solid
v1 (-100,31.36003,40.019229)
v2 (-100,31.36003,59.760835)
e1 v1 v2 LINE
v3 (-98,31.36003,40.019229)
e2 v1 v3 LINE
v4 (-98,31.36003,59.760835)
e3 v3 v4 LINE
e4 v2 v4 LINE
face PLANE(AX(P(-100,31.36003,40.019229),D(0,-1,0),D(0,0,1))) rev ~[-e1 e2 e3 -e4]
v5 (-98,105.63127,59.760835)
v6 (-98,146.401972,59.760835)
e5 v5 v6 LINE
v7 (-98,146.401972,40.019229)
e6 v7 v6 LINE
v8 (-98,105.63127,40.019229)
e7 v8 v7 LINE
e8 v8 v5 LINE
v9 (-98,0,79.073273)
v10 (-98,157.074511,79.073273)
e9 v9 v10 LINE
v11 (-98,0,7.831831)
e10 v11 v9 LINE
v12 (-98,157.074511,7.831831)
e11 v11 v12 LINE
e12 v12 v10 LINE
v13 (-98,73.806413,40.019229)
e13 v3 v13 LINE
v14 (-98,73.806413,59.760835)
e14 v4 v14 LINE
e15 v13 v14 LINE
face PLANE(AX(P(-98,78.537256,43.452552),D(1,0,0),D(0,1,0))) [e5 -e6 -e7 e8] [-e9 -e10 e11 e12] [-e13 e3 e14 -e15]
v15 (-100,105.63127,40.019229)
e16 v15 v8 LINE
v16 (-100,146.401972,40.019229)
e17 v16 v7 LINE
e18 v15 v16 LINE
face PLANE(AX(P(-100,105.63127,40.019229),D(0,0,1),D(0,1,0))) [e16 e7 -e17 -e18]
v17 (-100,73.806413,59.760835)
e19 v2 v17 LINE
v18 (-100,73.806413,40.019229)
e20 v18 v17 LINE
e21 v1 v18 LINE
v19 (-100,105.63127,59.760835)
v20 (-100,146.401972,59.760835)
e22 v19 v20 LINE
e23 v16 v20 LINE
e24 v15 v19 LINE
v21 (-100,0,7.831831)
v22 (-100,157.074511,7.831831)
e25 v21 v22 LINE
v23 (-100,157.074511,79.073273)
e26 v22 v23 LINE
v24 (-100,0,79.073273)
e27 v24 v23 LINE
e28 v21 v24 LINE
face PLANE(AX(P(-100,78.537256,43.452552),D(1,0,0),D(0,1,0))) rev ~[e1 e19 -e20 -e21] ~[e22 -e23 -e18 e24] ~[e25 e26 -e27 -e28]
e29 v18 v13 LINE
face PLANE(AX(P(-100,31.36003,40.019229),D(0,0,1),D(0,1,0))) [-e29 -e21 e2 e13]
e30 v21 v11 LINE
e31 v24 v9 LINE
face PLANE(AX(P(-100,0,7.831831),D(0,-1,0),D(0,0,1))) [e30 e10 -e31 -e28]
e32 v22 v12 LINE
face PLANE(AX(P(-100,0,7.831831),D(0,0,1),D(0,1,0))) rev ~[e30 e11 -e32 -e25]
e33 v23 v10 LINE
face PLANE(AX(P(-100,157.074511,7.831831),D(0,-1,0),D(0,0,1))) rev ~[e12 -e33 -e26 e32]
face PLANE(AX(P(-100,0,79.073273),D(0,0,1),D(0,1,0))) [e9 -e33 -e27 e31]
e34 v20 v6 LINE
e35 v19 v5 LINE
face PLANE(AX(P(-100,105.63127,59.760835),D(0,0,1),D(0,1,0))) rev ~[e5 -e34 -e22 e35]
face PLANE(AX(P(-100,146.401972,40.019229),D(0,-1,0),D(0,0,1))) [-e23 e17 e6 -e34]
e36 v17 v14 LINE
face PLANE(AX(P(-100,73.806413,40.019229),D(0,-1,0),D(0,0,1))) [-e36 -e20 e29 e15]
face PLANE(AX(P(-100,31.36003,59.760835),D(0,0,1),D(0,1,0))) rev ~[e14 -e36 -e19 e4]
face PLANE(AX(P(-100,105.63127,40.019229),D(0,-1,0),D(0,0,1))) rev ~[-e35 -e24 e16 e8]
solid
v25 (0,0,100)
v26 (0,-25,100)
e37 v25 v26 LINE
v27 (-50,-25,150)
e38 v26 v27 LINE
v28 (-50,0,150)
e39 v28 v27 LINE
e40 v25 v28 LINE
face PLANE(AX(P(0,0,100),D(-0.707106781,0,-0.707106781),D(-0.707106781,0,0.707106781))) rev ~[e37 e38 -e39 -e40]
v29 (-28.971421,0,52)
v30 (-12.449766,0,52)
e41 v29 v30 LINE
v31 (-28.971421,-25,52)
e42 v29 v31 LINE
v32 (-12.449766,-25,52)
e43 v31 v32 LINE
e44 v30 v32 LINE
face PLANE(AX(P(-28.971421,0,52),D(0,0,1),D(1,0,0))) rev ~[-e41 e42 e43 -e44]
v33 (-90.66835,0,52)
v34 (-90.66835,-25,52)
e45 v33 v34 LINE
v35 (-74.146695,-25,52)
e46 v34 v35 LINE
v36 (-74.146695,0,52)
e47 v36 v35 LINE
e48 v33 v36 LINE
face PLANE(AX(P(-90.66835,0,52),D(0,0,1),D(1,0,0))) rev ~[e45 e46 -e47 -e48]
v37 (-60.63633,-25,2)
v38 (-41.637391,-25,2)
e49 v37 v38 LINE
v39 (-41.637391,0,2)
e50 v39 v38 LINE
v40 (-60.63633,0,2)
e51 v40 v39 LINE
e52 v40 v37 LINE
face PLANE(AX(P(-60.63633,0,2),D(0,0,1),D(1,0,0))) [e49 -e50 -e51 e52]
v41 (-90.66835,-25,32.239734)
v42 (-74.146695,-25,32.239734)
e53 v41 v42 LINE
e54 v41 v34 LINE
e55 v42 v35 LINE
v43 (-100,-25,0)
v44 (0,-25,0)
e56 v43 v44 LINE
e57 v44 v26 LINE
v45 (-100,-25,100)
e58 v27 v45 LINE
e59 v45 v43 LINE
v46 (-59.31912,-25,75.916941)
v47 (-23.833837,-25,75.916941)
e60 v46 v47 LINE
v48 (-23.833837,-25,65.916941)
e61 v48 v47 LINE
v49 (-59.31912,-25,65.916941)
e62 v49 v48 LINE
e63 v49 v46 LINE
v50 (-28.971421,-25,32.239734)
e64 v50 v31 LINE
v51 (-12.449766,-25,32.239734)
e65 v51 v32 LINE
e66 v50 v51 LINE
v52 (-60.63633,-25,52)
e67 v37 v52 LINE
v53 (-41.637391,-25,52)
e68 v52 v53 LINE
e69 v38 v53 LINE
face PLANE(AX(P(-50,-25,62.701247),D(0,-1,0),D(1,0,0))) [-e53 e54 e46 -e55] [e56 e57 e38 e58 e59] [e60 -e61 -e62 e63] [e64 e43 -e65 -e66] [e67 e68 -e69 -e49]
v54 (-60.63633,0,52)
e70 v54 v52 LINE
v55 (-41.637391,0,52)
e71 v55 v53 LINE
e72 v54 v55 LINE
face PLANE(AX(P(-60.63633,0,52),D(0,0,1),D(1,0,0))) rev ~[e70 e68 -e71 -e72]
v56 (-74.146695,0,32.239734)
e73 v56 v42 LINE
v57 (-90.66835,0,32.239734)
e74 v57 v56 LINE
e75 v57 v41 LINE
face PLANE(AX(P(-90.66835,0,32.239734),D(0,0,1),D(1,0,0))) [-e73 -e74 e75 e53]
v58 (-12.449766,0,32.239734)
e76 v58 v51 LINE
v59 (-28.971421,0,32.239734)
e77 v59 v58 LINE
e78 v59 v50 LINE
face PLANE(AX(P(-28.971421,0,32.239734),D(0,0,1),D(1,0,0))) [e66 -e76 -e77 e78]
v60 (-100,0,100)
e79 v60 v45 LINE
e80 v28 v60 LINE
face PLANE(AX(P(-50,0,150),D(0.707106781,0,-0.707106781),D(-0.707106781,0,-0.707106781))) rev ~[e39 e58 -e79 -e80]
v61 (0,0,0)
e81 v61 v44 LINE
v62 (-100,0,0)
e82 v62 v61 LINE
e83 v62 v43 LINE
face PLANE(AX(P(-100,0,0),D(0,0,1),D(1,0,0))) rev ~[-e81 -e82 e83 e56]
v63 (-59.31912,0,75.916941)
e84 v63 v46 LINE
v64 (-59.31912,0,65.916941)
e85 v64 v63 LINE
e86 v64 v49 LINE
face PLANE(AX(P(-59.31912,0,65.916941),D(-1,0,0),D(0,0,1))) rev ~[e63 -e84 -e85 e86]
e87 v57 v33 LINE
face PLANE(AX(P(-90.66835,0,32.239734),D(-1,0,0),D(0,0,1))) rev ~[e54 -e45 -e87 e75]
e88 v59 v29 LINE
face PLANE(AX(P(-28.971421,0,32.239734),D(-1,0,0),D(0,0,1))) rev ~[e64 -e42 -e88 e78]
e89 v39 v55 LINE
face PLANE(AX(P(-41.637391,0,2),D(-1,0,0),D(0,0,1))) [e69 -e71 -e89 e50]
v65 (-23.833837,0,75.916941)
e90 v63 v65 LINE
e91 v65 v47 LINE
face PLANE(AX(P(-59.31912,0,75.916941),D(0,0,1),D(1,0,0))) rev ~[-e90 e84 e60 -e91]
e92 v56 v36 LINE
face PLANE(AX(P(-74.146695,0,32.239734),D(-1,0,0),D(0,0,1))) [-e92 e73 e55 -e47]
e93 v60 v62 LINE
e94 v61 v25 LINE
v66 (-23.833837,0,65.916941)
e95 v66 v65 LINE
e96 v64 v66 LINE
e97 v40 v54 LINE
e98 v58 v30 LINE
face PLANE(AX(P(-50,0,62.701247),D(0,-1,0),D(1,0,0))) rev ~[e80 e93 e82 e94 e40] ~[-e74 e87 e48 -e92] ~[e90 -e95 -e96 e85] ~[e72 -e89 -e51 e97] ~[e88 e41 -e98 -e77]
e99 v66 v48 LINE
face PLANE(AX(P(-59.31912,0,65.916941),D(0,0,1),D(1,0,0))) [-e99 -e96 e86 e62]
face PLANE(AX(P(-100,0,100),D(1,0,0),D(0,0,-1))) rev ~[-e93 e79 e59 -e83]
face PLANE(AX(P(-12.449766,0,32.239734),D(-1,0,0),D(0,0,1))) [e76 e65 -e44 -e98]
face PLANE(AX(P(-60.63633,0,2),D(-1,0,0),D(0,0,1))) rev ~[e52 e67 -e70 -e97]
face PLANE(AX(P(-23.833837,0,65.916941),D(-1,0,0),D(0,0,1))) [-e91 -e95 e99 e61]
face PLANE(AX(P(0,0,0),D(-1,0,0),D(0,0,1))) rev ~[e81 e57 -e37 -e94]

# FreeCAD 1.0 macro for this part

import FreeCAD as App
import Part
import Sketcher

doc = App.newDocument("Part")
body = doc.addObject("PartDesign::Body", "Body")

# Sketch on XZ plane
sketch1 = body.newObject("Sketcher::SketchObject", "Sketch")
sketch1.AttachmentSupport = (doc.getObject("XZ_Plane"), [""])
sketch1.MapMode = "FlatFace"
sketch1.addGeometry([
    Part.LineSegment(App.Vector(-100, 100, 0), App.Vector(-100, 0, 0)),  # 0
    Part.LineSegment(App.Vector(-100, 0, 0), App.Vector(0, 0, 0)),  # 1
    Part.LineSegment(App.Vector(0, 0, 0), App.Vector(0, 100, 0)),  # 2
    Part.LineSegment(App.Vector(0, 100, 0), App.Vector(-50, 150, 0)),  # 3
    Part.LineSegment(App.Vector(-50, 150, 0), App.Vector(-100, 100, 0)),  # 4
    Part.LineSegment(App.Vector(-41.637391, 2, 0), App.Vector(-60.63633, 2, 0)),  # 5
    Part.LineSegment(App.Vector(-60.63633, 2, 0), App.Vector(-60.63633, 52, 0)),  # 6
    Part.LineSegment(App.Vector(-60.63633, 52, 0), App.Vector(-41.637391, 52, 0)),  # 7
    Part.LineSegment(App.Vector(-41.637391, 52, 0), App.Vector(-41.637391, 2, 0)),  # 8
    Part.LineSegment(App.Vector(-74.146695, 32.239734, 0), App.Vector(-90.66835, 32.239734, 0)),  # 9
    Part.LineSegment(App.Vector(-90.66835, 32.239734, 0), App.Vector(-90.66835, 52, 0)),  # 10
    Part.LineSegment(App.Vector(-90.66835, 52, 0), App.Vector(-74.146695, 52, 0)),  # 11
    Part.LineSegment(App.Vector(-74.146695, 52, 0), App.Vector(-74.146695, 32.239734, 0)),  # 12
    Part.LineSegment(App.Vector(-12.449766, 32.239734, 0), App.Vector(-28.971421, 32.239734, 0)),  # 13
    Part.LineSegment(App.Vector(-28.971421, 32.239734, 0), App.Vector(-28.971421, 52, 0)),  # 14
    Part.LineSegment(App.Vector(-28.971421, 52, 0), App.Vector(-12.449766, 52, 0)),  # 15
    Part.LineSegment(App.Vector(-12.449766, 52, 0), App.Vector(-12.449766, 32.239734, 0)),  # 16
    Part.LineSegment(App.Vector(-23.833837, 65.916941, 0), App.Vector(-59.31912, 65.916941, 0)),  # 17
    Part.LineSegment(App.Vector(-59.31912, 65.916941, 0), App.Vector(-59.31912, 75.916941, 0)),  # 18
    Part.LineSegment(App.Vector(-59.31912, 75.916941, 0), App.Vector(-23.833837, 75.916941, 0)),  # 19
    Part.LineSegment(App.Vector(-23.833837, 75.916941, 0), App.Vector(-23.833837, 65.916941, 0)),  # 20
], False)
sketch1.addConstraint([
    Sketcher.Constraint("Coincident", 0, 2, 1, 1),
    Sketcher.Constraint("Coincident", 1, 2, 2, 1),
    Sketcher.Constraint("Coincident", 2, 2, 3, 1),
    Sketcher.Constraint("Coincident", 3, 2, 4, 1),
    Sketcher.Constraint("Coincident", 4, 2, 0, 1),
    Sketcher.Constraint("Coincident", 5, 2, 6, 1),
    Sketcher.Constraint("Coincident", 6, 2, 7, 1),
    Sketcher.Constraint("Coincident", 7, 2, 8, 1),
    Sketcher.Constraint("Coincident", 8, 2, 5, 1),
    Sketcher.Constraint("Coincident", 9, 2, 10, 1),
    Sketcher.Constraint("Coincident", 10, 2, 11, 1),
    Sketcher.Constraint("Coincident", 11, 2, 12, 1),
    Sketcher.Constraint("Coincident", 12, 2, 9, 1),
    Sketcher.Constraint("Coincident", 13, 2, 14, 1),
    Sketcher.Constraint("Coincident", 14, 2, 15, 1),
    Sketcher.Constraint("Coincident", 15, 2, 16, 1),
    Sketcher.Constraint("Coincident", 16, 2, 13, 1),
    Sketcher.Constraint("Coincident", 17, 2, 18, 1),
    Sketcher.Constraint("Coincident", 18, 2, 19, 1),
    Sketcher.Constraint("Coincident", 19, 2, 20, 1),
    Sketcher.Constraint("Coincident", 20, 2, 17, 1),
    Sketcher.Constraint("Vertical", 0),
    Sketcher.Constraint("Horizontal", 1),
    Sketcher.Constraint("Vertical", 2),
    Sketcher.Constraint("Horizontal", 5),
    Sketcher.Constraint("Vertical", 6),
    Sketcher.Constraint("Horizontal", 7),
    Sketcher.Constraint("Vertical", 8),
    Sketcher.Constraint("Horizontal", 9),
    Sketcher.Constraint("Vertical", 10),
    Sketcher.Constraint("Horizontal", 11),
    Sketcher.Constraint("Vertical", 12),
    Sketcher.Constraint("Horizontal", 13),
    Sketcher.Constraint("Vertical", 14),
    Sketcher.Constraint("Horizontal", 15),
    Sketcher.Constraint("Vertical", 16),
    Sketcher.Constraint("Horizontal", 17),
    Sketcher.Constraint("Vertical", 18),
    Sketcher.Constraint("Horizontal", 19),
    Sketcher.Constraint("Vertical", 20),
    Sketcher.Constraint("Coincident", 1, 2, -1, 1),
    Sketcher.Constraint("Perpendicular", 3, 4),
    Sketcher.Constraint("Horizontal", 2, 2, 4, 2),
    Sketcher.Constraint("Horizontal", 7, 2, 10, 2),
    Sketcher.Constraint("Horizontal", 12, 2, 13, 2),
    Sketcher.Constraint("Horizontal", 11, 2, 14, 2),
    Sketcher.Constraint("Equal", 11, 13),
    Sketcher.Constraint("Equal", 1, 0),
    Sketcher.Constraint("Equal", 3, 4),
    Sketcher.Constraint("DistanceX", 1, 1, 1, 2, 100.0),
    Sketcher.Constraint("DistanceY", 6, 1, 6, 2, 50.0),
    Sketcher.Constraint("DistanceY", 18, 1, 18, 2, 10.0),
    Sketcher.Constraint("DistanceY", -1, 1, 5, 2, 2.0),
    Sketcher.Constraint("DistanceX", 5, 2, 5, 1, 18.99894),
    Sketcher.Constraint("DistanceX", 17, 2, 14, 2, 30.347699),
    Sketcher.Constraint("DistanceX", 9, 2, 9, 1, 16.521655),
    Sketcher.Constraint("DistanceX", 17, 2, 17, 1, 35.485283),
    Sketcher.Constraint("DistanceY", 10, 1, 10, 2, 19.760266),
    Sketcher.Constraint("DistanceX", 5, 2, -1, 1, 60.63633),
    Sketcher.Constraint("DistanceX", 9, 2, -1, 1, 90.66835),
    Sketcher.Constraint("DistanceX", 13, 2, -1, 1, 28.971421),
    Sketcher.Constraint("DistanceY", -1, 1, 17, 2, 65.916941),
])
pad1 = body.newObject("PartDesign::Pad", "Pad")
pad1.Profile = sketch1
pad1.Length = 25
body2 = doc.addObject("PartDesign::Body", "Body001")

# Sketch on YZ plane
sketch2 = body2.newObject("Sketcher::SketchObject", "Sketch001")
sketch2.AttachmentSupport = (doc.getObject("YZ_Plane001"), [""])
sketch2.MapMode = "FlatFace"
sketch2.AttachmentOffset = App.Placement(App.Vector(0, 0, -100), App.Rotation())
sketch2.addGeometry([
    Part.LineSegment(App.Vector(0, 79.073273, 0), App.Vector(0, 7.831831, 0)),  # 0
    Part.LineSegment(App.Vector(0, 7.831831, 0), App.Vector(157.074511, 7.831831, 0)),  # 1
    Part.LineSegment(App.Vector(157.074511, 7.831831, 0), App.Vector(157.074511, 79.073273, 0)),  # 2
    Part.LineSegment(App.Vector(157.074511, 79.073273, 0), App.Vector(0, 79.073273, 0)),  # 3
    Part.LineSegment(App.Vector(73.806413, 40.019229, 0), App.Vector(31.36003, 40.019229, 0)),  # 4
    Part.LineSegment(App.Vector(31.36003, 40.019229, 0), App.Vector(31.36003, 59.760835, 0)),  # 5
    Part.LineSegment(App.Vector(31.36003, 59.760835, 0), App.Vector(73.806413, 59.760835, 0)),  # 6
    Part.LineSegment(App.Vector(73.806413, 59.760835, 0), App.Vector(73.806413, 40.019229, 0)),  # 7
    Part.LineSegment(App.Vector(146.401972, 40.019229, 0), App.Vector(105.63127, 40.019229, 0)),  # 8
    Part.LineSegment(App.Vector(105.63127, 40.019229, 0), App.Vector(105.63127, 59.760835, 0)),  # 9
    Part.LineSegment(App.Vector(105.63127, 59.760835, 0), App.Vector(146.401972, 59.760835, 0)),  # 10
    Part.LineSegment(App.Vector(146.401972, 59.760835, 0), App.Vector(146.401972, 40.019229, 0)),  # 11
], False)
sketch2.addConstraint([
    Sketcher.Constraint("Coincident", 0, 2, 1, 1),
    Sketcher.Constraint("Coincident", 1, 2, 2, 1),
    Sketcher.Constraint("Coincident", 2, 2, 3, 1),
    Sketcher.Constraint("Coincident", 3, 2, 0, 1),
    Sketcher.Constraint("Coincident", 4, 2, 5, 1),
    Sketcher.Constraint("Coincident", 5, 2, 6, 1),
    Sketcher.Constraint("Coincident", 6, 2, 7, 1),
    Sketcher.Constraint("Coincident", 7, 2, 4, 1),
    Sketcher.Constraint("Coincident", 8, 2, 9, 1),
    Sketcher.Constraint("Coincident", 9, 2, 10, 1),
    Sketcher.Constraint("Coincident", 10, 2, 11, 1),
    Sketcher.Constraint("Coincident", 11, 2, 8, 1),
    Sketcher.Constraint("Vertical", 0),
    Sketcher.Constraint("Horizontal", 1),
    Sketcher.Constraint("Vertical", 2),
    Sketcher.Constraint("Horizontal", 3),
    Sketcher.Constraint("Horizontal", 4),
    Sketcher.Constraint("Vertical", 5),
    Sketcher.Constraint("Horizontal", 6),
    Sketcher.Constraint("Vertical", 7),
    Sketcher.Constraint("Horizontal", 8),
    Sketcher.Constraint("Vertical", 9),
    Sketcher.Constraint("Horizontal", 10),
    Sketcher.Constraint("Vertical", 11),
    Sketcher.Constraint("PointOnObject", 0, 2, -2),
    Sketcher.Constraint("Horizontal", 7, 2, 8, 2),
    Sketcher.Constraint("Horizontal", 6, 2, 9, 2),
    Sketcher.Constraint("DistanceX", 1, 1, 1, 2, 157.074511),
    Sketcher.Constraint("DistanceY", 0, 2, 4, 2, 32.187399),
    Sketcher.Constraint("DistanceX", 6, 2, 2, 2, 83.268099),
    Sketcher.Constraint("DistanceX", 4, 2, 4, 1, 42.446382),
    Sketcher.Constraint("DistanceX", 8, 2, 8, 1, 40.770702),
    Sketcher.Constraint("DistanceY", 0, 2, 0, 1, 71.241442),
    Sketcher.Constraint("DistanceY", 5, 1, 5, 2, 19.741606),
    Sketcher.Constraint("DistanceY", -1, 1, 0, 2, 7.831831),
    Sketcher.Constraint("DistanceX", -1, 1, 8, 2, 105.63127),
])
pad2 = body2.newObject("PartDesign::Pad", "Pad001")
pad2.Profile = sketch2
pad2.Length = 2

doc.recompute()
